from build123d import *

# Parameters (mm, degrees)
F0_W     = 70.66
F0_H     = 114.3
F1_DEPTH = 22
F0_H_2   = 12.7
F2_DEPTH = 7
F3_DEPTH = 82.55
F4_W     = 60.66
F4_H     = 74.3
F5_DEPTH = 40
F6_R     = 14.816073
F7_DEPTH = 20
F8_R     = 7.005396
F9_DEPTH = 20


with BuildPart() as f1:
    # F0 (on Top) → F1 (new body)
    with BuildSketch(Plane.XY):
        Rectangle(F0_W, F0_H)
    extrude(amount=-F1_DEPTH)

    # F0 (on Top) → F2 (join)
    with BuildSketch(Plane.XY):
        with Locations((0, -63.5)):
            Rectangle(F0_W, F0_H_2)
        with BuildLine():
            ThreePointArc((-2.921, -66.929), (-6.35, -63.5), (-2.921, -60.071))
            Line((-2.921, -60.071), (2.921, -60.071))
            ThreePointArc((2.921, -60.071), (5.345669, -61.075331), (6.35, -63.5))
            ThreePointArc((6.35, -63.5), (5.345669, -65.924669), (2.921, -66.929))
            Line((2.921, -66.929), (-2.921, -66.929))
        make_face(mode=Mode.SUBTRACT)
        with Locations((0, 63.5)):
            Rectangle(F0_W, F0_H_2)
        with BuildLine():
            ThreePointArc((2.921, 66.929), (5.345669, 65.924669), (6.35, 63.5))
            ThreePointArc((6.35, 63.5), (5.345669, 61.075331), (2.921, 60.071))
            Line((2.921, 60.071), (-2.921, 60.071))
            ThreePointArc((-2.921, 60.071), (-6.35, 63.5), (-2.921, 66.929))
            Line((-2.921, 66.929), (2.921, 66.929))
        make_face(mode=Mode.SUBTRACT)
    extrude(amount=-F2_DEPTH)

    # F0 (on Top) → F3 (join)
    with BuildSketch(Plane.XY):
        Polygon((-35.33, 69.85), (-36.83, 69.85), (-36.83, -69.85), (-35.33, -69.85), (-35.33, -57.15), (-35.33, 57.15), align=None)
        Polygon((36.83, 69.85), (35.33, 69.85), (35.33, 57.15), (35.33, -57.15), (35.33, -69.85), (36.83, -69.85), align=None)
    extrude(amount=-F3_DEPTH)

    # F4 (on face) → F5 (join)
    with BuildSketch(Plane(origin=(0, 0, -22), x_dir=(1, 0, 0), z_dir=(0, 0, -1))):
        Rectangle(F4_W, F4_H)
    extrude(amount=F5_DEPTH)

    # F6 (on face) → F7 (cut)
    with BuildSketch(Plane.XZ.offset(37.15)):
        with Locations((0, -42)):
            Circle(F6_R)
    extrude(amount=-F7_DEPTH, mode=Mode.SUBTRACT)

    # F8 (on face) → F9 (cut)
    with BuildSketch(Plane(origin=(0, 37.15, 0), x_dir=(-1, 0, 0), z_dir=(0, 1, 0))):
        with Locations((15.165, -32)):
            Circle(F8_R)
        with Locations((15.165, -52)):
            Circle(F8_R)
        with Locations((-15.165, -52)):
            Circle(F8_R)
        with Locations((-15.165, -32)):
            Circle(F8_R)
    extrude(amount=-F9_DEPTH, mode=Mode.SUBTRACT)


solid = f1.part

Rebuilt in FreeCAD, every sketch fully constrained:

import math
import FreeCAD as App
import Part
import Sketcher

V = App.Vector
Q = App.Units.Quantity


def add_polygon(sketch, points):
    """Adds a closed chain of lines whose ends are joined by coincident constraints."""
    first, n = sketch.GeometryCount, len(points)
    for a, b in zip(points, points[1:] + points[:1]):
        sketch.addGeometry(Part.LineSegment(App.Vector(*a, 0), App.Vector(*b, 0)), False)
    for i in range(n):
        sketch.addConstraint(Sketcher.Constraint("Coincident", first + i, 2, first + (i + 1) % n, 1))

doc = App.newDocument("Part")
body = doc.addObject("PartDesign::Body", "Body")

sketch1 = body.newObject("Sketcher::SketchObject", "Sketch")
sketch1.AttachmentSupport = (doc.getObject("XY_Plane"), [""])
sketch1.MapMode = "FlatFace"
add_polygon(sketch1, [(-35.33, 57.15), (-35.33, -57.15), (35.33, -57.15), (35.33, 57.15)])
sketch1.addConstraint([
    Sketcher.Constraint("Vertical", 0),
    Sketcher.Constraint("Horizontal", 1),
    Sketcher.Constraint("Vertical", 2),
    Sketcher.Constraint("Horizontal", 3),
    Sketcher.Constraint("Symmetric", 0, 2, 2, 2, -1, 1),
    Sketcher.Constraint("DistanceY", 0, 2, 0, 1, Q("4.5 in")),
    Sketcher.Constraint("DistanceX", 1, 1, 1, 2, 70.66),
])
pad1 = body.newObject("PartDesign::Pad", "Pad")
pad1.Profile = sketch1
pad1.Length = 22
pad1.Reversed = True

sketch2 = body.newObject("Sketcher::SketchObject", "Sketch001")
sketch2.AttachmentSupport = (doc.getObject("XY_Plane"), [""])
sketch2.MapMode = "FlatFace"
add_polygon(sketch2, [(-35.33, -57.15), (-35.33, -69.85), (35.33, -69.85), (35.33, -57.15)])
sketch2.addGeometry(Part.LineSegment(V(2.921, -66.929, 0), V(-2.921, -66.929, 0)), False)
sketch2.addGeometry(Part.ArcOfCircle(Part.Circle(V(-2.921, -63.5, 0), V(0, 0, 1), 3.429), math.radians(90), math.radians(270)), False)
sketch2.addGeometry(Part.LineSegment(V(-2.921, -60.071, 0), V(2.921, -60.071, 0)), False)
sketch2.addGeometry(Part.ArcOfCircle(Part.Circle(V(2.920999, -63.500001, 0), V(0, 0, 1), 3.429001), math.radians(0.000009), math.radians(89.999991)), False)
sketch2.addGeometry(Part.ArcOfCircle(Part.Circle(V(2.920999, -63.499999, 0), V(0, 0, 1), 3.429001), math.radians(-89.999991), math.radians(-0.000009)), False)
add_polygon(sketch2, [(-35.33, 69.85), (-35.33, 57.15), (35.33, 57.15), (35.33, 69.85)])
sketch2.addGeometry(Part.LineSegment(V(-2.921, 66.929, 0), V(2.921, 66.929, 0)), False)
sketch2.addGeometry(Part.ArcOfCircle(Part.Circle(V(2.920999, 63.499999, 0), V(0, 0, 1), 3.429001), math.radians(0.000009), math.radians(89.999991)), False)
sketch2.addGeometry(Part.ArcOfCircle(Part.Circle(V(2.920999, 63.500001, 0), V(0, 0, 1), 3.429001), math.radians(-89.999991), math.radians(-0.000009)), False)
sketch2.addGeometry(Part.LineSegment(V(2.921, 60.071, 0), V(-2.921, 60.071, 0)), False)
sketch2.addGeometry(Part.ArcOfCircle(Part.Circle(V(-2.921, 63.5, 0), V(0, 0, 1), 3.429), math.radians(90), math.radians(270)), False)
sketch2.addConstraint([
    Sketcher.Constraint("Tangent", 4, 2, 5, 2),
    Sketcher.Constraint("Tangent", 5, 1, 6, 1),
    Sketcher.Constraint("Tangent", 6, 2, 7, 2),
    Sketcher.Constraint("Tangent", 7, 1, 8, 2),
    Sketcher.Constraint("Tangent", 8, 1, 4, 1),
    Sketcher.Constraint("Tangent", 13, 2, 14, 2),
    Sketcher.Constraint("Tangent", 14, 1, 15, 2),
    Sketcher.Constraint("Tangent", 15, 1, 16, 1),
    Sketcher.Constraint("Tangent", 16, 2, 17, 2),
    Sketcher.Constraint("Tangent", 17, 1, 13, 1),
    Sketcher.Constraint("Vertical", 0),
    Sketcher.Constraint("Horizontal", 1),
    Sketcher.Constraint("Vertical", 2),
    Sketcher.Constraint("Horizontal", 3),
    Sketcher.Constraint("Horizontal", 4),
    Sketcher.Constraint("Horizontal", 6),
    Sketcher.Constraint("Vertical", 9),
    Sketcher.Constraint("Horizontal", 10),
    Sketcher.Constraint("Vertical", 11),
    Sketcher.Constraint("Horizontal", 12),
    Sketcher.Constraint("Horizontal", 13),
    Sketcher.Constraint("Horizontal", 16),
    Sketcher.Constraint("Equal", 5, 7),
    Sketcher.Constraint("Equal", 8, 14),
    Sketcher.Constraint("Equal", 14, 15),
    Sketcher.Constraint("Symmetric", 5, 3, 14, 3, -1, 1),
    Sketcher.Constraint("Symmetric", 2, 2, 9, 2, -1, 1),
    Sketcher.Constraint("Symmetric", 0, 2, 11, 2, -1, 1),
    Sketcher.Constraint("Symmetric", 7, 1, 14, 1, -1),
    Sketcher.Constraint("Horizontal", 8, 3, 7, 1),
    Sketcher.Constraint("Vertical", 5, 3, 17, 3),
    Sketcher.Constraint("Vertical", 3, 2, 9, 2),
    Sketcher.Constraint("DistanceY", 0, 2, 0, 1, Q("0.5 in")),
    Sketcher.Constraint("Radius", 5, Q("0.135 in")),
    Sketcher.Constraint("DistanceY", 8, 3, 14, 3, Q("5 in")),
    Sketcher.Constraint("DistanceX", 4, 2, 4, 1, Q("0.23 in")),
    Sketcher.Constraint("DistanceY", 3, 2, 9, 2, Q("4.5 in")),
    Sketcher.Constraint("DistanceX", 1, 1, 1, 2, 70.66),
])
pad2 = body.newObject("PartDesign::Pad", "Pad001")
pad2.Profile = sketch2
pad2.Length = 7
pad2.Reversed = True

sketch3 = body.newObject("Sketcher::SketchObject", "Sketch002")
sketch3.AttachmentSupport = (doc.getObject("XY_Plane"), [""])
sketch3.MapMode = "FlatFace"
add_polygon(sketch3, [(-35.33, 69.85), (-36.83, 69.85), (-36.83, -69.85), (-35.33, -69.85)])
add_polygon(sketch3, [(36.83, 69.85), (35.33, 69.85), (35.33, -69.85), (36.83, -69.85)])
sketch3.addConstraint([
    Sketcher.Constraint("Horizontal", 0),
    Sketcher.Constraint("Vertical", 1),
    Sketcher.Constraint("Horizontal", 2),
    Sketcher.Constraint("Vertical", 3),
    Sketcher.Constraint("Horizontal", 4),
    Sketcher.Constraint("Vertical", 5),
    Sketcher.Constraint("Horizontal", 6),
    Sketcher.Constraint("Vertical", 7),
    Sketcher.Constraint("Symmetric", 2, 2, 4, 2, -1, 1),
    Sketcher.Constraint("Symmetric", 0, 2, 6, 2, -1, 1),
    Sketcher.Constraint("Horizontal", 3, 2, 4, 2),
    Sketcher.Constraint("DistanceY", 1, 2, 1, 1, Q("5.5 in")),
    Sketcher.Constraint("DistanceX", 1, 2, 6, 2, Q("2.9 in")),
    Sketcher.Constraint("DistanceX", 0, 2, 0, 1, 1.5),
])
pad3 = body.newObject("PartDesign::Pad", "Pad002")
pad3.Profile = sketch3
pad3.Length = Q("3.25 in")
pad3.Reversed = True

sketch4 = body.newObject("Sketcher::SketchObject", "Sketch003")
sketch4.AttachmentSupport = (doc.getObject("XY_Plane"), [""])
sketch4.MapMode = "FlatFace"
sketch4.AttachmentOffset = App.Placement(V(0, 0, -22), App.Rotation())
add_polygon(sketch4, [(-30.33, -37.15), (-30.33, 37.15), (30.33, 37.15), (30.33, -37.15)])
sketch4.addConstraint([
    Sketcher.Constraint("Vertical", 0),
    Sketcher.Constraint("Horizontal", 1),
    Sketcher.Constraint("Vertical", 2),
    Sketcher.Constraint("Horizontal", 3),
    Sketcher.Constraint("Symmetric", 0, 2, 2, 2, -1, 1),
    Sketcher.Constraint("DistanceX", 1, 1, 1, 2, 60.66),
    Sketcher.Constraint("DistanceY", 0, 1, 0, 2, 74.3),
])
pad4 = body.newObject("PartDesign::Pad", "Pad003")
pad4.Profile = sketch4
pad4.Length = 40
pad4.Reversed = True

sketch5 = body.newObject("Sketcher::SketchObject", "Sketch004")
sketch5.AttachmentSupport = (doc.getObject("XZ_Plane"), [""])
sketch5.MapMode = "FlatFace"
sketch5.AttachmentOffset = App.Placement(V(0, 0, 37.15), App.Rotation())
sketch5.addGeometry(Part.Circle(V(0, -42, 0), V(0, 0, 1), 14.816073), False)
sketch5.addConstraint([
    Sketcher.Constraint("PointOnObject", 0, 3, -2),
    Sketcher.Constraint("Diameter", 0, 29.632146),
    Sketcher.Constraint("DistanceY", 0, 3, -1, 1, 42.0),
])
pocket1 = body.newObject("PartDesign::Pocket", "Pocket")
pocket1.Profile = sketch5
pocket1.Length = 20

sketch6 = body.newObject("Sketcher::SketchObject", "Sketch005")
sketch6.AttachmentSupport = (doc.getObject("XZ_Plane"), [""])
sketch6.MapMode = "FlatFace"
sketch6.AttachmentOffset = App.Placement(V(0, 0, -37.15), App.Rotation())
sketch6.addGeometry([
    Part.Circle(V(-15.165, -32, 0), V(0, 0, 1), 7.005396),
    Part.Circle(V(-15.165, -52, 0), V(0, 0, 1), 7.005396),
    Part.Circle(V(15.165, -52, 0), V(0, 0, 1), 7.005396),
    Part.Circle(V(15.165, -32, 0), V(0, 0, 1), 7.005396),
], False)
sketch6.addConstraint([
    Sketcher.Constraint("Equal", 0, 1),
    Sketcher.Constraint("Equal", 1, 2),
    Sketcher.Constraint("Equal", 2, 3),
    Sketcher.Constraint("Symmetric", 1, 3, 2, 3, -2),
    Sketcher.Constraint("Symmetric", 0, 3, 3, 3, -2),
    Sketcher.Constraint("Vertical", 0, 3, 1, 3),
    Sketcher.Constraint("Diameter", 0, 14.010792),
    Sketcher.Constraint("DistanceX", 0, 3, -1, 1, 15.165),
    Sketcher.Constraint("DistanceY", 0, 3, -1, 1, 32.0),
    Sketcher.Constraint("DistanceY", 1, 3, -1, 1, 52.0),
])
pocket2 = body.newObject("PartDesign::Pocket", "Pocket001")
pocket2.Profile = sketch6
pocket2.Length = 20
pocket2.Reversed = True

doc.recompute()
